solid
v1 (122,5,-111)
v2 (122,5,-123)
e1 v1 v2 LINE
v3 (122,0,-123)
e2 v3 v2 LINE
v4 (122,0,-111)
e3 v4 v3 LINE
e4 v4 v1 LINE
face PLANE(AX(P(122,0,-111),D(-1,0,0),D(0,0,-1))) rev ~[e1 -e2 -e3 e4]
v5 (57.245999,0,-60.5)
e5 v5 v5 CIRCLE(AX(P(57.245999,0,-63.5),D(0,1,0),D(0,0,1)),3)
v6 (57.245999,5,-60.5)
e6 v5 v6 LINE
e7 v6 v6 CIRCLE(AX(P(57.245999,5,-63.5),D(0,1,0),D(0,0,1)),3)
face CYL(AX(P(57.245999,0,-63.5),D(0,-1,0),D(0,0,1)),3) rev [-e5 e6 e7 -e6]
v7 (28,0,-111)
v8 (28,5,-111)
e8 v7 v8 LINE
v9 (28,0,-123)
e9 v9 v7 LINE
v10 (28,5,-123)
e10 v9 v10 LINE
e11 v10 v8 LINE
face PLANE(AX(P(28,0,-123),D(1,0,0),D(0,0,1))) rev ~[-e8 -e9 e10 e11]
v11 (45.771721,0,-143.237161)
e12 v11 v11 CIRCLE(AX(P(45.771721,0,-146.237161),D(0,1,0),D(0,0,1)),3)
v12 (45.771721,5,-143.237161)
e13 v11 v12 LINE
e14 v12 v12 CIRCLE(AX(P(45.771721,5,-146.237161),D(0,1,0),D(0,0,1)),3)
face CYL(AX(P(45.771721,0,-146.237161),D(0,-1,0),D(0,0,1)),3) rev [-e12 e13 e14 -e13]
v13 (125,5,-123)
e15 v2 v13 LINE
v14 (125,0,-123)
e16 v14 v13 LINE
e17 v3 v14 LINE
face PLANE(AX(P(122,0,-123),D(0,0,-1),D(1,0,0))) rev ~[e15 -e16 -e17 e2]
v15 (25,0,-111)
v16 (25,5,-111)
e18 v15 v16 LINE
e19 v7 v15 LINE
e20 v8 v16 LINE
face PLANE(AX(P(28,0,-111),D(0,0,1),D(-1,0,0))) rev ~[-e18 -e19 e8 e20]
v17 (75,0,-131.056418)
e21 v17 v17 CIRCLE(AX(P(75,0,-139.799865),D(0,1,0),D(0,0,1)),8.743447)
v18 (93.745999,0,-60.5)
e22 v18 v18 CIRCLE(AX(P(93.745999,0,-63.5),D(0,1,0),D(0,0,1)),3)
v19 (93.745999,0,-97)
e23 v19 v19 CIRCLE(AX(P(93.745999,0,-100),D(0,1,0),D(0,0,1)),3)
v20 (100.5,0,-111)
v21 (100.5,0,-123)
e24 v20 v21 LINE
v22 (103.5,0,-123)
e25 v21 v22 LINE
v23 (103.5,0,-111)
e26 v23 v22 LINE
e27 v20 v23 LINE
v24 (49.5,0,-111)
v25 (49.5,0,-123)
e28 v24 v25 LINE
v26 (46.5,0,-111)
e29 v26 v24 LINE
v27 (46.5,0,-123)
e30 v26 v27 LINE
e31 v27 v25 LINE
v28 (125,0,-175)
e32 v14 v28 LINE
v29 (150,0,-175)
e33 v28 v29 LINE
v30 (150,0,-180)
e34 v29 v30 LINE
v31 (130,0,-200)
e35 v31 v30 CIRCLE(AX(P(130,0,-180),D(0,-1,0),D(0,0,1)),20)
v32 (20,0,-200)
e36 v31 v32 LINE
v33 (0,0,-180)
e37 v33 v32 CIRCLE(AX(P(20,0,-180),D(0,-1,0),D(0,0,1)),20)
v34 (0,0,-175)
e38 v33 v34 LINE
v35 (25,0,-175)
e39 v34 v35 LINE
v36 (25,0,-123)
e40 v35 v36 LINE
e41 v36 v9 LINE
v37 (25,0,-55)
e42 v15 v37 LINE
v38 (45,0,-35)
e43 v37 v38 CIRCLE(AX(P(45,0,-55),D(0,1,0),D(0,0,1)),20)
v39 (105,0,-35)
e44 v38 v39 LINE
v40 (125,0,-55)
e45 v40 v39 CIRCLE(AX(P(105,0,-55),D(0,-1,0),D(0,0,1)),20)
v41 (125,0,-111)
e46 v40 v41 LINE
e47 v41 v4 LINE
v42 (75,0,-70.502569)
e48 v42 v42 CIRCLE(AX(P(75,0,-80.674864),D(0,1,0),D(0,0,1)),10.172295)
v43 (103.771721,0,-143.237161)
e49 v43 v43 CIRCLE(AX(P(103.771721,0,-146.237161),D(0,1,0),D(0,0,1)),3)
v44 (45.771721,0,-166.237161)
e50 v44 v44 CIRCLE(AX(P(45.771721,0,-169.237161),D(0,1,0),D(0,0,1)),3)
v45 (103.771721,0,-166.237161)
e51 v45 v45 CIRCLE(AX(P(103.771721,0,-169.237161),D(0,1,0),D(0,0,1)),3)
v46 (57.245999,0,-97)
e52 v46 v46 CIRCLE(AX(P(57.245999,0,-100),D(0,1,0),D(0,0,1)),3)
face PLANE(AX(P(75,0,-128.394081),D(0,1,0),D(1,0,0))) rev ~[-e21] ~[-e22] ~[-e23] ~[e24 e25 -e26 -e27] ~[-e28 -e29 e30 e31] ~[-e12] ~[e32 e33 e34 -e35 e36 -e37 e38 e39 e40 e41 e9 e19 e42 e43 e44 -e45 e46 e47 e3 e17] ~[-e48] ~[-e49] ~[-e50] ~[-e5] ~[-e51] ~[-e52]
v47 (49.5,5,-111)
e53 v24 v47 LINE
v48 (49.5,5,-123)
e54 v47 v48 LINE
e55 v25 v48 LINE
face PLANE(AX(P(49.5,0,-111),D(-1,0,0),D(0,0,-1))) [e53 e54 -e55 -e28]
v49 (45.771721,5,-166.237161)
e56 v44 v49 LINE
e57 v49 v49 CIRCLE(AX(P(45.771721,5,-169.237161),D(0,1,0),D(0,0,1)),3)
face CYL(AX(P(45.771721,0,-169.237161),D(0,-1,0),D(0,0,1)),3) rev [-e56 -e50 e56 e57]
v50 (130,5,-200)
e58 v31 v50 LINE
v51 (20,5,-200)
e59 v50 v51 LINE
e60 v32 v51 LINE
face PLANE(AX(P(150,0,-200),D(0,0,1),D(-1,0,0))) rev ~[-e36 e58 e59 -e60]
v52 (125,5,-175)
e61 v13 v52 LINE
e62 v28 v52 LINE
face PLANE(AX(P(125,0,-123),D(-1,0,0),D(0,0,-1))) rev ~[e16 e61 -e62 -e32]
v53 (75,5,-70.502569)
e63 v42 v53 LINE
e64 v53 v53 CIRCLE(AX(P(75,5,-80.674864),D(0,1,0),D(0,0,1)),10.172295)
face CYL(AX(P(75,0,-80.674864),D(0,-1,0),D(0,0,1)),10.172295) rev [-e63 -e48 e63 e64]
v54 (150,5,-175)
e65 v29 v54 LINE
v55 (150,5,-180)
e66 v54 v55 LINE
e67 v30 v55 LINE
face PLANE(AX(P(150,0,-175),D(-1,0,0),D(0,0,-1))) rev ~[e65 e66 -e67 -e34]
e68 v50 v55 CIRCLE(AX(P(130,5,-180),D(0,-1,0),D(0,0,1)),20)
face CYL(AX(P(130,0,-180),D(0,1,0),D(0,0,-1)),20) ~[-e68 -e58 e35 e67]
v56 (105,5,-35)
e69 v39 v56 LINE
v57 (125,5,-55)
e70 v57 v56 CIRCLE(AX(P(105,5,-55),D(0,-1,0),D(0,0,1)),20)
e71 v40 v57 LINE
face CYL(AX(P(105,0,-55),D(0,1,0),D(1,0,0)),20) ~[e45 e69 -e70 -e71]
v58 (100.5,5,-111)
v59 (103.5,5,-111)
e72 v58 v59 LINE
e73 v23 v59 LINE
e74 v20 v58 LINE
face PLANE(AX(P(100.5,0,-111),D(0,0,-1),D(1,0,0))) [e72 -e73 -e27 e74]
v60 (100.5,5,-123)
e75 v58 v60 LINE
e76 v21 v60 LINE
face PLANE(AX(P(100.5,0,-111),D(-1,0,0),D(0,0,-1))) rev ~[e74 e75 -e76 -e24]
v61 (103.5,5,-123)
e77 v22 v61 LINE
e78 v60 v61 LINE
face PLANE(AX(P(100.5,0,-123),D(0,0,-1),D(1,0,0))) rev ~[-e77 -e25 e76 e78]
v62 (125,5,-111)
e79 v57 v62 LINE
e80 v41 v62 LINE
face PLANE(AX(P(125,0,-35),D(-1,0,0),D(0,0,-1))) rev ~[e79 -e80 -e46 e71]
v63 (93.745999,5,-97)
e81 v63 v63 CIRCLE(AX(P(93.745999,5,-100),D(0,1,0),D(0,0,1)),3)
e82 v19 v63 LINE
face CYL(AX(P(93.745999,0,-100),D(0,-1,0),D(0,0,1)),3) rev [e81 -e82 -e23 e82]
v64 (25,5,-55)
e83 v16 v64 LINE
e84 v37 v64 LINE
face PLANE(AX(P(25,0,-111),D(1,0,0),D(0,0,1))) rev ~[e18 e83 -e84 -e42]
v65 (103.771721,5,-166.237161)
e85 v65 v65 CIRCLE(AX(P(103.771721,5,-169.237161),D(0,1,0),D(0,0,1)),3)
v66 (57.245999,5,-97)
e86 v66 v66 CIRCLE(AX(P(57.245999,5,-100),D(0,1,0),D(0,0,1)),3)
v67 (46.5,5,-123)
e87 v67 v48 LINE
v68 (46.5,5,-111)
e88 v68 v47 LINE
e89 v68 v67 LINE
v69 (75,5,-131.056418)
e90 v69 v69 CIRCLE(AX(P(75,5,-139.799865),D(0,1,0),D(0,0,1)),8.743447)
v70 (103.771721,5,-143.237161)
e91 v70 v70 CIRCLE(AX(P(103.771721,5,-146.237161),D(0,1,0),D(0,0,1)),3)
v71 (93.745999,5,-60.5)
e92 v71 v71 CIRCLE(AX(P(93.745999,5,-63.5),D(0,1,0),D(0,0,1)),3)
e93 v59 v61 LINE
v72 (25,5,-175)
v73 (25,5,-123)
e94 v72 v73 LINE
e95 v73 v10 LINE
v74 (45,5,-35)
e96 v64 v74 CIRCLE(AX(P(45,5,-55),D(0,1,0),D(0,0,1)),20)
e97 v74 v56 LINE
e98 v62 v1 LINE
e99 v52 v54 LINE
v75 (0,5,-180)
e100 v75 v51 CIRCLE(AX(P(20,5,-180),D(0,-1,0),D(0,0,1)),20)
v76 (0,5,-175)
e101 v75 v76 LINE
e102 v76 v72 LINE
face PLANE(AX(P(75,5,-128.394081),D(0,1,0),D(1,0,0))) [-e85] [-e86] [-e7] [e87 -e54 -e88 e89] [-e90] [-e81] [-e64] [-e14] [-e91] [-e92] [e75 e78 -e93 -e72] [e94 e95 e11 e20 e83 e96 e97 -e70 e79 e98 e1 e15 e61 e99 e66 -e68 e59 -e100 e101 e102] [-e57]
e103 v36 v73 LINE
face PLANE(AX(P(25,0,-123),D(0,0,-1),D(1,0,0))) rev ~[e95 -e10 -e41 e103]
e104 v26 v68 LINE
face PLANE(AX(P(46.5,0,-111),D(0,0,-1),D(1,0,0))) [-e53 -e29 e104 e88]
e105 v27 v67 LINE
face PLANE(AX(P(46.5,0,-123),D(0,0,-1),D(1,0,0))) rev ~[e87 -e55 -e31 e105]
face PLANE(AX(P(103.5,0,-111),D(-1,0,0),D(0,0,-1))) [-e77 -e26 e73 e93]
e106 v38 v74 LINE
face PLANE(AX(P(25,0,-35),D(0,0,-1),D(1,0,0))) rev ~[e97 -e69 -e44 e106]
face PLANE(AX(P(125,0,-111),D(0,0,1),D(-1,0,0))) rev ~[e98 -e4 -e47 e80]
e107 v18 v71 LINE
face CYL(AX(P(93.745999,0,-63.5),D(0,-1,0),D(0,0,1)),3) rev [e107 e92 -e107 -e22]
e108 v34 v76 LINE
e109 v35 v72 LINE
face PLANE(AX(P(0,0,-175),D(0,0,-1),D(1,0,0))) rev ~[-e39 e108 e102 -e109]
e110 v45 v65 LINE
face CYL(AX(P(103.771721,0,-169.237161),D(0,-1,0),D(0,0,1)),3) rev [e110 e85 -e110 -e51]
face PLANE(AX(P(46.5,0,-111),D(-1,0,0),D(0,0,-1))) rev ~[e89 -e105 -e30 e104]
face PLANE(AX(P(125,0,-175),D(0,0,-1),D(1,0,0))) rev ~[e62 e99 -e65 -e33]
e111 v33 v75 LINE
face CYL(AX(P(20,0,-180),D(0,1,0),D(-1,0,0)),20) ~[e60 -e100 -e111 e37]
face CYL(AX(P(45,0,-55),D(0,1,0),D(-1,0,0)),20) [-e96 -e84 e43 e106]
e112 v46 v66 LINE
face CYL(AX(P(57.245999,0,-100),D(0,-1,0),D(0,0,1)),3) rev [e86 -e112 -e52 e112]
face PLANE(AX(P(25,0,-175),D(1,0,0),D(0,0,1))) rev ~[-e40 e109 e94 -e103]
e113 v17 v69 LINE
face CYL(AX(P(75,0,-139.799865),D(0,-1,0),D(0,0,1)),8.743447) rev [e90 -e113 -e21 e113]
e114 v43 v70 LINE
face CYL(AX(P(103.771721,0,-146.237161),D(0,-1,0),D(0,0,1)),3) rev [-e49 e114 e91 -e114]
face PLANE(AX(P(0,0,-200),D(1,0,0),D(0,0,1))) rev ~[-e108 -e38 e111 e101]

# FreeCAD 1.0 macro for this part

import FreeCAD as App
import Part
import Sketcher

V = App.Vector
Q = App.Units.Quantity


def edges_at(feature, points):
    """Names of the edges that pass closest to the given points."""
    edges = feature.Shape.Edges
    near = lambda p: min(range(len(edges)), key=lambda i: edges[i].distToShape(Part.Vertex(*p))[0])
    return sorted({f"Edge{near(p) + 1}" for p in points})


def add_polygon(sketch, points):
    """Adds a closed chain of lines whose ends are joined by coincident constraints."""
    first, n = sketch.GeometryCount, len(points)
    for a, b in zip(points, points[1:] + points[:1]):
        sketch.addGeometry(Part.LineSegment(App.Vector(*a, 0), App.Vector(*b, 0)), False)
    for i in range(n):
        sketch.addConstraint(Sketcher.Constraint("Coincident", first + i, 2, first + (i + 1) % n, 1))

doc = App.newDocument("Part")
body = doc.addObject("PartDesign::Body", "Body")

sketch1 = doc.addObject("Sketcher::SketchObject", "Sketch")
body.addObject(sketch1)
sketch1.AttachmentSupport = (doc.XZ_Plane, [""])
sketch1.MapMode = "FlatFace"
add_polygon(sketch1, [(25, -35), (125, -35), (125, -111), (122, -111), (122, -123), (125, -123), (125, -175), (150, -175), (150, -200), (0, -200), (0, -175), (25, -175), (25, -123), (28, -123), (28, -111), (25, -111)])
sketch1.addGeometry(Part.Circle(V(57.2, -63.5, 0), V(0, 0, 1), 3), False)
sketch1.addGeometry(Part.Circle(V(57.2, -100, 0), V(0, 0, 1), 3), False)
sketch1.addGeometry(Part.Circle(V(75, -80.7, 0), V(0, 0, 1), 10.2), False)
sketch1.addGeometry(Part.Circle(V(93.7, -63.5, 0), V(0, 0, 1), 3), False)
sketch1.addGeometry(Part.Circle(V(93.7, -100, 0), V(0, 0, 1), 3), False)
add_polygon(sketch1, [(49.5, -111), (46.5, -111), (46.5, -123), (49.5, -123)])
sketch1.addGeometry(Part.Circle(V(45.8, -146.2, 0), V(0, 0, 1), 3), False)
sketch1.addGeometry(Part.Circle(V(45.8, -169.2, 0), V(0, 0, 1), 3), False)
sketch1.addGeometry(Part.Circle(V(75, -139.8, 0), V(0, 0, 1), 8.7), False)
add_polygon(sketch1, [(103.5, -111), (100.5, -111), (100.5, -123), (103.5, -123)])
sketch1.addGeometry(Part.Circle(V(103.8, -146.2, 0), V(0, 0, 1), 3), False)
sketch1.addGeometry(Part.Circle(V(103.8, -169.2, 0), V(0, 0, 1), 3), False)
sketch1.addConstraint([
    Sketcher.Constraint("Horizontal", 0),
    Sketcher.Constraint("Vertical", 1),
    Sketcher.Constraint("Horizontal", 2),
    Sketcher.Constraint("Vertical", 3),
    Sketcher.Constraint("Horizontal", 4),
    Sketcher.Constraint("Vertical", 5),
    Sketcher.Constraint("Horizontal", 6),
    Sketcher.Constraint("Vertical", 7),
    Sketcher.Constraint("Horizontal", 8),
    Sketcher.Constraint("Vertical", 9),
    Sketcher.Constraint("Horizontal", 10),
    Sketcher.Constraint("Vertical", 11),
    Sketcher.Constraint("Horizontal", 12),
    Sketcher.Constraint("Vertical", 13),
    Sketcher.Constraint("Horizontal", 14),
    Sketcher.Constraint("Vertical", 15),
    Sketcher.Constraint("Horizontal", 21),
    Sketcher.Constraint("Vertical", 22),
    Sketcher.Constraint("Horizontal", 23),
    Sketcher.Constraint("Vertical", 24),
    Sketcher.Constraint("Horizontal", 28),
    Sketcher.Constraint("Vertical", 29),
    Sketcher.Constraint("Horizontal", 30),
    Sketcher.Constraint("Vertical", 31),
    Sketcher.Constraint("Equal", 16, 17),
    Sketcher.Constraint("Equal", 17, 19),
    Sketcher.Constraint("Equal", 19, 20),
    Sketcher.Constraint("Equal", 20, 25),
    Sketcher.Constraint("Equal", 25, 26),
    Sketcher.Constraint("Equal", 26, 32),
    Sketcher.Constraint("Equal", 32, 33),
    Sketcher.Constraint("PointOnObject", 8, 2, -2),
    Sketcher.Constraint("Horizontal", 16, 3, 19, 3),
    Sketcher.Constraint("Horizontal", 17, 3, 20, 3),
    Sketcher.Constraint("Horizontal", 25, 3, 32, 3),
    Sketcher.Constraint("Horizontal", 26, 3, 33, 3),
    Sketcher.Constraint("Horizontal", 6, 2, 9, 2),
    Sketcher.Constraint("Horizontal", 4, 2, 11, 2),
    Sketcher.Constraint("Horizontal", 2, 2, 13, 2),
    Sketcher.Constraint("Horizontal", 14, 2, 21, 2),
    Sketcher.Constraint("Horizontal", 12, 2, 22, 2),
    Sketcher.Constraint("Horizontal", 24, 2, 28, 2),
    Sketcher.Constraint("Horizontal", 23, 2, 29, 2),
    Sketcher.Constraint("Vertical", 16, 3, 17, 3),
    Sketcher.Constraint("Vertical", 19, 3, 20, 3),
    Sketcher.Constraint("Vertical", 25, 3, 26, 3),
    Sketcher.Constraint("Vertical", 18, 3, 27, 3),
    Sketcher.Constraint("Vertical", 32, 3, 33, 3),
    Sketcher.Constraint("Vertical", 1, 2, 4, 2),
    Sketcher.Constraint("Vertical", 11, 2, 14, 2),
    Sketcher.Constraint("Equal", 6, 10),
    Sketcher.Constraint("Equal", 4, 12),
    Sketcher.Constraint("Equal", 14, 21),
    Sketcher.Constraint("Equal", 23, 28),
    Sketcher.Constraint("Equal", 10, 7),
    Sketcher.Constraint("Diameter", 16, Q("6 mm")),
    Sketcher.Constraint("DistanceX", 0, 1, 0, 2, Q("100 mm")),
    Sketcher.Constraint("DistanceX", 2, 2, 2, 1, Q("3 mm")),
    Sketcher.Constraint("DistanceX", 6, 1, 6, 2, Q("25 mm")),
    Sketcher.Constraint("DistanceY", 1, 2, 1, 1, Q("76 mm")),
    Sketcher.Constraint("DistanceY", 3, 2, 3, 1, Q("12 mm")),
    Sketcher.Constraint("DistanceY", 5, 2, 5, 1, Q("52 mm")),
    Sketcher.Constraint("DistanceY", 17, 3, -1, 1, Q("100 mm")),
    Sketcher.Constraint("DistanceX", -1, 1, 18, 3, Q("75 mm")),
    Sketcher.Constraint("DistanceY", 0, 2, -1, 1, Q("35 mm")),
    Sketcher.Constraint("DistanceY", 26, 3, 25, 3, Q("23 mm")),
    Sketcher.Constraint("DistanceX", 25, 3, 32, 3, Q("58 mm")),
    Sketcher.Constraint("DistanceY", 16, 3, -1, 1, Q("63.5 mm")),
    Sketcher.Constraint("DistanceX", -1, 1, 21, 2, Q("46.5 mm")),
    Sketcher.Constraint("DistanceX", -1, 1, 28, 2, Q("100.5 mm")),
    Sketcher.Constraint("DistanceX", 16, 3, 19, 3, Q("36.5 mm")),
    Sketcher.Constraint("Diameter", 18, Q("20.34459 mm")),
    Sketcher.Constraint("Diameter", 27, Q("17.486894 mm")),
    Sketcher.Constraint("DistanceX", -1, 1, 16, 3, Q("57.245999 mm")),
    Sketcher.Constraint("DistanceY", 27, 3, 18, 3, Q("59.125001 mm")),
    Sketcher.Constraint("DistanceX", -1, 1, 25, 3, Q("45.771721 mm")),
    Sketcher.Constraint("DistanceY", 25, 3, -1, 1, Q("146.237161 mm")),
    Sketcher.Constraint("DistanceY", 18, 3, -1, 1, Q("80.674864 mm")),
])
pad1 = doc.addObject("PartDesign::Pad", "Pad")
body.addObject(pad1)
pad1.Profile = sketch1
pad1.Length = 5
pad1.Reversed = True
doc.recompute()

fillet = doc.addObject("PartDesign::Fillet", "Fillet")
body.addObject(fillet)
fillet.Base = (pad1, edges_at(pad1, [(0, 2.5, -200)]))
fillet.Radius = 20
doc.recompute()

fillet2 = doc.addObject("PartDesign::Fillet", "Fillet001")
body.addObject(fillet2)
fillet2.Base = (fillet, edges_at(fillet, [(150, 2.5, -200)]))
fillet2.Radius = 20
doc.recompute()

fillet3 = doc.addObject("PartDesign::Fillet", "Fillet002")
body.addObject(fillet3)
fillet3.Base = (fillet2, edges_at(fillet2, [(125, 2.5, -35), (25, 2.5, -35)]))
fillet3.Radius = 20

doc.recompute()
